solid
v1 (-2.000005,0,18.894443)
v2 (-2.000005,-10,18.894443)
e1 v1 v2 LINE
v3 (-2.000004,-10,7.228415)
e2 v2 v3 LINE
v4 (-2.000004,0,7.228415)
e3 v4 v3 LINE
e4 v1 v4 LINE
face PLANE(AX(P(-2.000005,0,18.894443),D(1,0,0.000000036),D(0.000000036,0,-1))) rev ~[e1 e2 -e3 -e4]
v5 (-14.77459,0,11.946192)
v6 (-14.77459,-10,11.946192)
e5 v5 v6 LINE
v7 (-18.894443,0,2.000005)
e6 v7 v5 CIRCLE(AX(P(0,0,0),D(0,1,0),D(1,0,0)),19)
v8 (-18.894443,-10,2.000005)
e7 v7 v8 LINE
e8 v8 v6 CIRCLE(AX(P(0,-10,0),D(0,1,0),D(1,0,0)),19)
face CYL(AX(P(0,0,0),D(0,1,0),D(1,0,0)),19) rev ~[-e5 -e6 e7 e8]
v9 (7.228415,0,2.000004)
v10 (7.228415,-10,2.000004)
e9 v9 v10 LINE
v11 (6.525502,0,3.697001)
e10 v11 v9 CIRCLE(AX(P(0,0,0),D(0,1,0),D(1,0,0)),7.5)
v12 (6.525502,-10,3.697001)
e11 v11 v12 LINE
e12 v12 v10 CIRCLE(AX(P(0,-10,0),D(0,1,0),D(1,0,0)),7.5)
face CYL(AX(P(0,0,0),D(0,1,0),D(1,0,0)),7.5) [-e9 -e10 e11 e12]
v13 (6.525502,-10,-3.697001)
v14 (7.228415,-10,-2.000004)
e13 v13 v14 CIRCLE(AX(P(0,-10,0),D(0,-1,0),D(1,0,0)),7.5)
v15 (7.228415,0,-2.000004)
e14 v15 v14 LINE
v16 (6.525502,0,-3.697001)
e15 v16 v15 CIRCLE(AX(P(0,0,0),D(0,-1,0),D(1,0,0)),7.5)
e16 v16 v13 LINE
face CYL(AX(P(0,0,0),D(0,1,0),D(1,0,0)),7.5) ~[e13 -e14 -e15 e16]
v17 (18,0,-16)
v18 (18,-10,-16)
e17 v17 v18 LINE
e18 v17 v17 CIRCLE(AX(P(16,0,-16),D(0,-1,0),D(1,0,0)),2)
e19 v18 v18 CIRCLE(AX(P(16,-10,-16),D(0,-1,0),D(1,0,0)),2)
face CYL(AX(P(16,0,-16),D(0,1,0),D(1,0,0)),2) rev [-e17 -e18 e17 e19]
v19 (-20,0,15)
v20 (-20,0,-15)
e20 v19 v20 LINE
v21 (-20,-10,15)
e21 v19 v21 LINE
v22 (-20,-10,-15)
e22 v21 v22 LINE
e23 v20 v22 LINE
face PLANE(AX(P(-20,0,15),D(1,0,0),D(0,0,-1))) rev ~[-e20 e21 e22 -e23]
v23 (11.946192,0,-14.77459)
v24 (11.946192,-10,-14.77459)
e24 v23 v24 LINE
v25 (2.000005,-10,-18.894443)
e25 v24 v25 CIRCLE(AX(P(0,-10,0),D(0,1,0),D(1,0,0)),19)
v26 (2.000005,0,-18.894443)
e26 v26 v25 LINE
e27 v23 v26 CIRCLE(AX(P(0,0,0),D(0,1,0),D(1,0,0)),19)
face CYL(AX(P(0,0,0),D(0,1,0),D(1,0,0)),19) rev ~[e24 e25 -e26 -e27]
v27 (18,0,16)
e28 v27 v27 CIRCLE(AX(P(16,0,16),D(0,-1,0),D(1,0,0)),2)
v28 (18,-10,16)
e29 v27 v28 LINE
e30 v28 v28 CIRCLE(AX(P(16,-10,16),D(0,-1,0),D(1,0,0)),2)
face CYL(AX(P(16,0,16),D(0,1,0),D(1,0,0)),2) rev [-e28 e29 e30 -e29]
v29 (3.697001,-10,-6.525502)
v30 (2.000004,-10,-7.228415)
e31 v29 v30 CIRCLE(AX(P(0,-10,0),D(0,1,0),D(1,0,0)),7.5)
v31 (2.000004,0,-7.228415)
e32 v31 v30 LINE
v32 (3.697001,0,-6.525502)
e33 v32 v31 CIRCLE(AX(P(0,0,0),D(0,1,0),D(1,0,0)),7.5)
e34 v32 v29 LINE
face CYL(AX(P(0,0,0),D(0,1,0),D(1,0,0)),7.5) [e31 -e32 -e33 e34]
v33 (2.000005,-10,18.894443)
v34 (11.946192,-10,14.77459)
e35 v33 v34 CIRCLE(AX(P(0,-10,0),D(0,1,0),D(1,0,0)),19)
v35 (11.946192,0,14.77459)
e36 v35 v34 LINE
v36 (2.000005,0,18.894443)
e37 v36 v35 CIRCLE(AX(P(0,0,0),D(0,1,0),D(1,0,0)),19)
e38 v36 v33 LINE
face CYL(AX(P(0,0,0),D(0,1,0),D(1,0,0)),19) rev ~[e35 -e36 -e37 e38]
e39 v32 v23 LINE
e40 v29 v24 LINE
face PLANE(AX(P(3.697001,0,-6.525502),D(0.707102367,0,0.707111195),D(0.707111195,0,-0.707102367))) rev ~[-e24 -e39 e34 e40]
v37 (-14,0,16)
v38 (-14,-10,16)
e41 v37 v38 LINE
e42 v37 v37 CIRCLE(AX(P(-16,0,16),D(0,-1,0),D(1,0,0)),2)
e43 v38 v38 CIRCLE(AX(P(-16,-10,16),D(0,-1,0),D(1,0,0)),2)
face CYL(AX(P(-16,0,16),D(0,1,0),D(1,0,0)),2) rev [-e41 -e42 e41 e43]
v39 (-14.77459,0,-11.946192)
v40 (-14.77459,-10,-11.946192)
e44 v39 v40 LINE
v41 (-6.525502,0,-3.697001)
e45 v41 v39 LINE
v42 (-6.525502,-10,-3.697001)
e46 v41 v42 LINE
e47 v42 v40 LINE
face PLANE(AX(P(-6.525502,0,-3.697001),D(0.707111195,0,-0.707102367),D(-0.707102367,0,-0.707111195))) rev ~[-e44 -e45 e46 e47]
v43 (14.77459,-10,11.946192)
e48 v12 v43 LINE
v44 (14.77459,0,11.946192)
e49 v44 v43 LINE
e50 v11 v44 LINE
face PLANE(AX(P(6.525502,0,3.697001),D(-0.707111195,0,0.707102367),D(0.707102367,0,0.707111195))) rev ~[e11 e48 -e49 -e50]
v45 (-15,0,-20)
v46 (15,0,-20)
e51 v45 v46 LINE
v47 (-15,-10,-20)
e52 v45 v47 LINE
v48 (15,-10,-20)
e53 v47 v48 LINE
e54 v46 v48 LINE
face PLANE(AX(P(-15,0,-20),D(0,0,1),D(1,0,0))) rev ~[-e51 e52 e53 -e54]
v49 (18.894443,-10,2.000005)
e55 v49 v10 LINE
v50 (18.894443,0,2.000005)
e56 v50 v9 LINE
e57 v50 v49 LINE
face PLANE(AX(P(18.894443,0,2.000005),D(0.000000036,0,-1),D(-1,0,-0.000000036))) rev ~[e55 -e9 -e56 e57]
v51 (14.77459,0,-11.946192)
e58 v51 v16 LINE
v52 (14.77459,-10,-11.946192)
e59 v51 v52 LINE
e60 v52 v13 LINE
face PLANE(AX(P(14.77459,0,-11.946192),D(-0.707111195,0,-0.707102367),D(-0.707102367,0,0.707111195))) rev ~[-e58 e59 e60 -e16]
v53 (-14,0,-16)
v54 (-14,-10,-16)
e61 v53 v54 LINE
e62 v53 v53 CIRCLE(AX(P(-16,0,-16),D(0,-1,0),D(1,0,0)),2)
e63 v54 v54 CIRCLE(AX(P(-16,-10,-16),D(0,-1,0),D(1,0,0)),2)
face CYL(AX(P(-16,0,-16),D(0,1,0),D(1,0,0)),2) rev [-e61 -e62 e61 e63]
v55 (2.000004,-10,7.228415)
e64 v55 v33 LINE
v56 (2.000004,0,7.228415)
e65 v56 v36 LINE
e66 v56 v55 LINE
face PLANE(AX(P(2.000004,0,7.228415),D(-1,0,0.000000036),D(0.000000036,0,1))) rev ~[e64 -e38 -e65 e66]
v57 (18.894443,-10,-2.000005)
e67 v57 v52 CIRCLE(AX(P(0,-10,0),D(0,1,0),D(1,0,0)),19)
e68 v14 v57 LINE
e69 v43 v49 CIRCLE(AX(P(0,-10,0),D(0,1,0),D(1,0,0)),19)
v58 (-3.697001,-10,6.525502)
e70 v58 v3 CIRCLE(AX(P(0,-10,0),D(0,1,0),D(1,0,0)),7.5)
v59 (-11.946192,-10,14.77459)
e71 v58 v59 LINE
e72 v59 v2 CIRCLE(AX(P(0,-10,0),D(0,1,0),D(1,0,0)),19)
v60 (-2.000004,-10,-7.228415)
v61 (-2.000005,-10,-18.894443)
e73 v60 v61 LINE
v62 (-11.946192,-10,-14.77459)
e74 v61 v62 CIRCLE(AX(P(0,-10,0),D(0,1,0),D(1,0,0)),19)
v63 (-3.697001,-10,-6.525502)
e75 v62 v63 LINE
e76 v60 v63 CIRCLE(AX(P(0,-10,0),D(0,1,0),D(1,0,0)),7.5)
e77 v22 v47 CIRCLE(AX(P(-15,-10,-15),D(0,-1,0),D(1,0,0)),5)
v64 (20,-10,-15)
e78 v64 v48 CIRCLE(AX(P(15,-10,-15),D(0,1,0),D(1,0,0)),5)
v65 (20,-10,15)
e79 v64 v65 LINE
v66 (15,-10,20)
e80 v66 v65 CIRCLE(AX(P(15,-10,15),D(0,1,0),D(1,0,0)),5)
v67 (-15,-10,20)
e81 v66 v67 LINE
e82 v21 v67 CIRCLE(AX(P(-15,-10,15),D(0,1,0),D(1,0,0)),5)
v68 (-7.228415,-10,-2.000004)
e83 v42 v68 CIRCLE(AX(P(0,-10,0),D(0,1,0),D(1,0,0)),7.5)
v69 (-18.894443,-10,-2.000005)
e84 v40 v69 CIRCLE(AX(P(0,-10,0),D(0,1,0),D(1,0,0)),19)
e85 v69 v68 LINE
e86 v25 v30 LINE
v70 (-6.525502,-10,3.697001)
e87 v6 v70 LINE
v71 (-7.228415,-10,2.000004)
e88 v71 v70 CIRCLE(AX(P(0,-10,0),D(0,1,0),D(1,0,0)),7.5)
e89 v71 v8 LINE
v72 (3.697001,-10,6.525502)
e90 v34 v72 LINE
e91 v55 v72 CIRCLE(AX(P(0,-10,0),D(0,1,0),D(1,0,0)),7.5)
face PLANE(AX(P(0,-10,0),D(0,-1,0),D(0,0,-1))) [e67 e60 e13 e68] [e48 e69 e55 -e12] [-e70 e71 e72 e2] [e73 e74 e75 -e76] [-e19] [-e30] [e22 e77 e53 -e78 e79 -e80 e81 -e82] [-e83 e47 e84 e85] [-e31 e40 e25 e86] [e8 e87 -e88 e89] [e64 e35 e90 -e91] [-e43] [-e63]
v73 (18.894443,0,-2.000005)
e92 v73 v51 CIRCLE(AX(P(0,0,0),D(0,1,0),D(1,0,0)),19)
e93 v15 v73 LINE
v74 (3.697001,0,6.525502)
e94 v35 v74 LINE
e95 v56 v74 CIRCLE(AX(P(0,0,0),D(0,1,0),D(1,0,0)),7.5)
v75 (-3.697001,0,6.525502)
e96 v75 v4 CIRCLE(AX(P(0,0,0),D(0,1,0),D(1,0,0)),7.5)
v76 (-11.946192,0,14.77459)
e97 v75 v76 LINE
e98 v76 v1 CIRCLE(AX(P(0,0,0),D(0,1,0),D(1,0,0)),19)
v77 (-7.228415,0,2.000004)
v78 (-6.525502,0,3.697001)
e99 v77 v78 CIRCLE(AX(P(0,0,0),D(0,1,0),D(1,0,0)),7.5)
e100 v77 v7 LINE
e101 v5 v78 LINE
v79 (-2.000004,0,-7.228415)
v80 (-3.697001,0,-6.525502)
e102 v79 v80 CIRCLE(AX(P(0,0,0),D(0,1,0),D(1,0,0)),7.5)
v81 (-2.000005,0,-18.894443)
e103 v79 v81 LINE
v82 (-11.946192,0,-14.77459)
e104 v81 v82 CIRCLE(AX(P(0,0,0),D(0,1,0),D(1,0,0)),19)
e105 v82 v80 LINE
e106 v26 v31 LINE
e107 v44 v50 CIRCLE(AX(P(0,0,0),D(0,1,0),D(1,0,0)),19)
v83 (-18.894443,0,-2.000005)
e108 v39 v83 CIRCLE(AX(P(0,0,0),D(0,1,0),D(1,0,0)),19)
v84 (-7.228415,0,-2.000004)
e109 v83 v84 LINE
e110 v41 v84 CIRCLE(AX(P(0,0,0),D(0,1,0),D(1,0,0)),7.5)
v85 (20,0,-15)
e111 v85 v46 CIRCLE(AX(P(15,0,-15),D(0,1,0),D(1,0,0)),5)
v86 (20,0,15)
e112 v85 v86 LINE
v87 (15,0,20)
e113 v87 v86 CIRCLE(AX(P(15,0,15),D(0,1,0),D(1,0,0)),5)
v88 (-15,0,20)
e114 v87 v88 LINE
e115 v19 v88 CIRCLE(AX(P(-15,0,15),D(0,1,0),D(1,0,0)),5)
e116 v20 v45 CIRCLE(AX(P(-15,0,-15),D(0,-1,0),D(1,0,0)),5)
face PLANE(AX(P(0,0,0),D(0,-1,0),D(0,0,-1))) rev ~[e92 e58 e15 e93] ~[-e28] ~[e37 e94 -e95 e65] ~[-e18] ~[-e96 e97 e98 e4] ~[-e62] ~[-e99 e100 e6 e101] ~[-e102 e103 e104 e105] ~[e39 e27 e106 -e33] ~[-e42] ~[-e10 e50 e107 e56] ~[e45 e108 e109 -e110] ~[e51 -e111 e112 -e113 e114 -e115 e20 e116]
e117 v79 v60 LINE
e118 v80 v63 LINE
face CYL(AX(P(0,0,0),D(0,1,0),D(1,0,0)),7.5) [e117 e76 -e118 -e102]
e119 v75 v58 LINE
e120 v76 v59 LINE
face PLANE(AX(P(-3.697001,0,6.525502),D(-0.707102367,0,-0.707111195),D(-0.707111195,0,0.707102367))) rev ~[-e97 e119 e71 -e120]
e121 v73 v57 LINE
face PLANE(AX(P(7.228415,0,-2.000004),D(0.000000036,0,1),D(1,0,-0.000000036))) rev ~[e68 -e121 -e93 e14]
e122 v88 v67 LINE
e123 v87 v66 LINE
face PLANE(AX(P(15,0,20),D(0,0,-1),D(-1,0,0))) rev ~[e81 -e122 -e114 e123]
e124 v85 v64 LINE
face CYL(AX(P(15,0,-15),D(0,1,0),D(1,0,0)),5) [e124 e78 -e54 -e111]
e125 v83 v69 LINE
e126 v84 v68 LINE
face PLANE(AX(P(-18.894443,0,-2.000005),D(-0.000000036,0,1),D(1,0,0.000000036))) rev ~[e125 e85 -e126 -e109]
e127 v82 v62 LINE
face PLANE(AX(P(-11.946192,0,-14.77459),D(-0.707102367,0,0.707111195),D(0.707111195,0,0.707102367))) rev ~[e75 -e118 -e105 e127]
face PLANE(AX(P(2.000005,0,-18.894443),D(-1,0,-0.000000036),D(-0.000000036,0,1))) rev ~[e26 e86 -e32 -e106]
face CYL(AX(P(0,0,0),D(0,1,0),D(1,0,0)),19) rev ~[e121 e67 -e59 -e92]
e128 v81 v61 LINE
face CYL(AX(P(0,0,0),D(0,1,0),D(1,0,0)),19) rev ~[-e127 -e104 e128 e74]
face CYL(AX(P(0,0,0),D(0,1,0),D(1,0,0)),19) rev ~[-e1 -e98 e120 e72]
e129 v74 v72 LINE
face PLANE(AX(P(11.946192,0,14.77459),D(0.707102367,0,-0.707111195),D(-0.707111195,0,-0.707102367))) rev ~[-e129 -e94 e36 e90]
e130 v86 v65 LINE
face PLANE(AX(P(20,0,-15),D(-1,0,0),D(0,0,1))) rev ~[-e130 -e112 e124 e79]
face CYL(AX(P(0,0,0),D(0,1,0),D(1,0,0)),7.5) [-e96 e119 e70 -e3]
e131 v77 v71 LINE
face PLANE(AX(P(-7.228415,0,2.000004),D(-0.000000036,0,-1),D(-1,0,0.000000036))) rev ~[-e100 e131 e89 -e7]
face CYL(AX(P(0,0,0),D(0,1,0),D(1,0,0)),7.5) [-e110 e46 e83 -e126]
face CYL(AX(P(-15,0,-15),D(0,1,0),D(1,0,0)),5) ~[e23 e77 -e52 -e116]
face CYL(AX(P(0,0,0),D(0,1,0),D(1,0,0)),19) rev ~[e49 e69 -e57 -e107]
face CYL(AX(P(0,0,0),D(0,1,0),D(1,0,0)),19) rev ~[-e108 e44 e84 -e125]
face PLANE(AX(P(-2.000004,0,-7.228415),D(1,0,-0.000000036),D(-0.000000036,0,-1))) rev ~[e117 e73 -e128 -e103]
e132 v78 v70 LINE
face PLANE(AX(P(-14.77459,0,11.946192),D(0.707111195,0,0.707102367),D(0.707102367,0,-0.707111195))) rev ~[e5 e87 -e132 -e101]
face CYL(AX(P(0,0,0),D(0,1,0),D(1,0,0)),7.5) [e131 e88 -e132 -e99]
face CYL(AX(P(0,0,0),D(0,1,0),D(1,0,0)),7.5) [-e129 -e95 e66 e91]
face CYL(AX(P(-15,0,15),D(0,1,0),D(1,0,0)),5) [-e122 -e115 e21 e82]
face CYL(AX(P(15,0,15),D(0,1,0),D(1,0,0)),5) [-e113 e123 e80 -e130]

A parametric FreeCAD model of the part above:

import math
import FreeCAD as App
import Part
import Sketcher

V = App.Vector

doc = App.newDocument("Part")
body = doc.addObject("PartDesign::Body", "Body")

sketch1 = body.newObject("Sketcher::SketchObject", "Sketch")
sketch1.AttachmentSupport = (doc.getObject("XZ_Plane"), [""])
sketch1.MapMode = "FlatFace"
sketch1.addGeometry([
    Part.ArcOfCircle(Part.Circle(V(-15, -15, 0), V(0, 0, 1), 5), math.radians(180), math.radians(270)),
    Part.LineSegment(V(-15, -20, 0), V(15, -20, 0)),
    Part.ArcOfCircle(Part.Circle(V(15, -15, 0), V(0, 0, 1), 5), math.radians(-90), math.radians(0)),
    Part.LineSegment(V(20, -15, 0), V(20, 15, 0)),
    Part.ArcOfCircle(Part.Circle(V(15, 15, 0), V(0, 0, 1), 5), math.radians(0), math.radians(90)),
    Part.LineSegment(V(15, 20, 0), V(-15, 20, 0)),
    Part.ArcOfCircle(Part.Circle(V(-15, 15, 0), V(0, 0, 1), 5), math.radians(90), math.radians(180)),
    Part.LineSegment(V(-20, 15, 0), V(-20, -15, 0)),
    Part.Circle(V(-16, -16, 0), V(0, 0, 1), 2),
    Part.ArcOfCircle(Part.Circle(V(0, 0, 0), V(0, 0, 1), 7.499997), math.radians(-119.533576), math.radians(-105.466043)),
    Part.LineSegment(V(-2, -7.2284, 0), V(-2, -18.8944, 0)),
    Part.ArcOfCircle(Part.Circle(V(0, 0, 0), V(0, 0, 1), 19.000013), math.radians(-128.957734), math.radians(-96.042342)),
    Part.LineSegment(V(-11.9462, -14.7746, 0), V(-3.697, -6.5255, 0)),
    Part.ArcOfCircle(Part.Circle(V(0, 0, 0), V(0, 0, 1), 7.499984), math.radians(-164.533957), math.radians(-150.466424)),
    Part.LineSegment(V(-6.5255, -3.697, 0), V(-14.7746, -11.9462, 0)),
    Part.ArcOfCircle(Part.Circle(V(0, 0, 0), V(0, 0, 1), 18.999957), math.radians(-173.957658), math.radians(-141.042266)),
    Part.LineSegment(V(-18.8944, -2, 0), V(-7.2284, -2, 0)),
    Part.ArcOfCircle(Part.Circle(V(0, 0, 0), V(0, 0, 1), 18.999957), math.radians(-83.957658), math.radians(-51.042266)),
    Part.LineSegment(V(2, -18.8944, 0), V(2, -7.2284, 0)),
    Part.ArcOfCircle(Part.Circle(V(0, 0, 0), V(0, 0, 1), 7.499984), math.radians(-74.533957), math.radians(-60.466424)),
    Part.LineSegment(V(3.697, -6.5255, 0), V(11.9462, -14.7746, 0)),
    Part.Circle(V(16, -16, 0), V(0, 0, 1), 2),
    Part.LineSegment(V(7.2284, -2, 0), V(18.8944, -2, 0)),
    Part.ArcOfCircle(Part.Circle(V(0, 0, 0), V(0, 0, 1), 19.000013), math.radians(-38.957734), math.radians(-6.042342)),
    Part.LineSegment(V(14.7746, -11.9462, 0), V(6.5255, -3.697, 0)),
    Part.ArcOfCircle(Part.Circle(V(0, 0, 0), V(0, 0, 1), 7.499984), math.radians(-29.533576), math.radians(-15.466043)),
    Part.ArcOfCircle(Part.Circle(V(0, 0, 0), V(0, 0, 1), 19.000013), math.radians(141.042266), math.radians(173.957658)),
    Part.LineSegment(V(-14.7746, 11.9462, 0), V(-6.5255, 3.697, 0)),
    Part.ArcOfCircle(Part.Circle(V(0, 0, 0), V(0, 0, 1), 7.499997), math.radians(150.466424), math.radians(164.533957)),
    Part.LineSegment(V(-7.2284, 2, 0), V(-18.8944, 2, 0)),
    Part.Circle(V(-16, 16, 0), V(0, 0, 1), 2),
    Part.ArcOfCircle(Part.Circle(V(0, 0, 0), V(0, 0, 1), 18.999957), math.radians(96.042342), math.radians(128.957734)),
    Part.LineSegment(V(-2, 18.8944, 0), V(-2, 7.2284, 0)),
    Part.ArcOfCircle(Part.Circle(V(0, 0, 0), V(0, 0, 1), 7.499984), math.radians(105.466043), math.radians(119.533576)),
    Part.LineSegment(V(-3.697, 6.5255, 0), V(-11.9462, 14.7746, 0)),
    Part.ArcOfCircle(Part.Circle(V(0, 0, 0), V(0, 0, 1), 18.999957), math.radians(6.042342), math.radians(38.957734)),
    Part.LineSegment(V(18.8944, 2, 0), V(7.2284, 2, 0)),
    Part.ArcOfCircle(Part.Circle(V(0, 0, 0), V(0, 0, 1), 7.499984), math.radians(15.466043), math.radians(29.533576)),
    Part.LineSegment(V(6.5255, 3.697, 0), V(14.7746, 11.9462, 0)),
    Part.ArcOfCircle(Part.Circle(V(0, 0, 0), V(0, 0, 1), 7.499997), math.radians(60.466424), math.radians(74.533957)),
    Part.LineSegment(V(2, 7.2284, 0), V(2, 18.8944, 0)),
    Part.ArcOfCircle(Part.Circle(V(0, 0, 0), V(0, 0, 1), 19.000013), math.radians(51.042266), math.radians(83.957658)),
    Part.LineSegment(V(11.9462, 14.7746, 0), V(3.697, 6.5255, 0)),
    Part.Circle(V(16, 16, 0), V(0, 0, 1), 2),
], False)
sketch1.addConstraint([
    Sketcher.Constraint("Tangent", 0, 2, 1, 1),
    Sketcher.Constraint("Tangent", 1, 2, 2, 1),
    Sketcher.Constraint("Tangent", 2, 2, 3, 1),
    Sketcher.Constraint("Tangent", 3, 2, 4, 1),
    Sketcher.Constraint("Tangent", 4, 2, 5, 1),
    Sketcher.Constraint("Tangent", 5, 2, 6, 1),
    Sketcher.Constraint("Tangent", 6, 2, 7, 1),
    Sketcher.Constraint("Tangent", 7, 2, 0, 1),
    Sketcher.Constraint("Coincident", 9, 2, 10, 1),
    Sketcher.Constraint("Coincident", 10, 2, 11, 2),
    Sketcher.Constraint("Coincident", 11, 1, 12, 1),
    Sketcher.Constraint("Coincident", 12, 2, 9, 1),
    Sketcher.Constraint("Coincident", 13, 2, 14, 1),
    Sketcher.Constraint("Coincident", 14, 2, 15, 2),
    Sketcher.Constraint("Coincident", 15, 1, 16, 1),
    Sketcher.Constraint("Coincident", 16, 2, 13, 1),
    Sketcher.Constraint("Coincident", 17, 1, 18, 1),
    Sketcher.Constraint("Coincident", 18, 2, 19, 1),
    Sketcher.Constraint("Coincident", 19, 2, 20, 1),
    Sketcher.Constraint("Coincident", 20, 2, 17, 2),
    Sketcher.Constraint("Coincident", 22, 2, 23, 2),
    Sketcher.Constraint("Coincident", 23, 1, 24, 1),
    Sketcher.Constraint("Coincident", 24, 2, 25, 1),
    Sketcher.Constraint("Coincident", 25, 2, 22, 1),
    Sketcher.Constraint("Coincident", 26, 1, 27, 1),
    Sketcher.Constraint("Coincident", 27, 2, 28, 1),
    Sketcher.Constraint("Coincident", 28, 2, 29, 1),
    Sketcher.Constraint("Coincident", 29, 2, 26, 2),
    Sketcher.Constraint("Coincident", 31, 1, 32, 1),
    Sketcher.Constraint("Coincident", 32, 2, 33, 1),
    Sketcher.Constraint("Coincident", 33, 2, 34, 1),
    Sketcher.Constraint("Coincident", 34, 2, 31, 2),
    Sketcher.Constraint("Coincident", 35, 1, 36, 1),
    Sketcher.Constraint("Coincident", 36, 2, 37, 1),
    Sketcher.Constraint("Coincident", 37, 2, 38, 1),
    Sketcher.Constraint("Coincident", 38, 2, 35, 2),
    Sketcher.Constraint("Coincident", 39, 2, 40, 1),
    Sketcher.Constraint("Coincident", 40, 2, 41, 2),
    Sketcher.Constraint("Coincident", 41, 1, 42, 1),
    Sketcher.Constraint("Coincident", 42, 2, 39, 1),
    Sketcher.Constraint("Horizontal", 1),
    Sketcher.Constraint("Vertical", 3),
    Sketcher.Constraint("Horizontal", 5),
    Sketcher.Constraint("Vertical", 7),
    Sketcher.Constraint("Vertical", 10),
    Sketcher.Constraint("Horizontal", 16),
    Sketcher.Constraint("Vertical", 18),
    Sketcher.Constraint("Horizontal", 22),
    Sketcher.Constraint("Horizontal", 29),
    Sketcher.Constraint("Vertical", 32),
    Sketcher.Constraint("Horizontal", 36),
    Sketcher.Constraint("Vertical", 40),
    Sketcher.Constraint("Coincident", 9, 3, -1, 1),
    Sketcher.Constraint("Coincident", 11, 3, -1, 1),
    Sketcher.Constraint("Coincident", 13, 3, -1, 1),
    Sketcher.Constraint("Coincident", 15, 3, -1, 1),
    Sketcher.Constraint("Coincident", 17, 3, -1, 1),
    Sketcher.Constraint("Coincident", 19, 3, -1, 1),
    Sketcher.Constraint("Coincident", 23, 3, -1, 1),
    Sketcher.Constraint("Coincident", 25, 3, -1, 1),
    Sketcher.Constraint("Coincident", 26, 3, -1, 1),
    Sketcher.Constraint("Coincident", 28, 3, -1, 1),
    Sketcher.Constraint("Coincident", 31, 3, -1, 1),
    Sketcher.Constraint("Coincident", 33, 3, -1, 1),
    Sketcher.Constraint("Coincident", 35, 3, -1, 1),
    Sketcher.Constraint("Coincident", 37, 3, -1, 1),
    Sketcher.Constraint("Coincident", 39, 3, -1, 1),
    Sketcher.Constraint("Coincident", 41, 3, -1, 1),
    Sketcher.Constraint("Equal", 0, 2),
    Sketcher.Constraint("Equal", 2, 4),
    Sketcher.Constraint("Equal", 4, 6),
    Sketcher.Constraint("Equal", 9, 13),
    Sketcher.Constraint("Equal", 11, 15),
    Sketcher.Constraint("Equal", 15, 17),
    Sketcher.Constraint("Equal", 13, 19),
    Sketcher.Constraint("Equal", 8, 21),
    Sketcher.Constraint("Equal", 17, 23),
    Sketcher.Constraint("Equal", 19, 25),
    Sketcher.Constraint("Equal", 23, 26),
    Sketcher.Constraint("Equal", 25, 28),
    Sketcher.Constraint("Equal", 21, 30),
    Sketcher.Constraint("Equal", 26, 31),
    Sketcher.Constraint("Equal", 28, 33),
    Sketcher.Constraint("Equal", 31, 35),
    Sketcher.Constraint("Equal", 33, 37),
    Sketcher.Constraint("Equal", 37, 39),
    Sketcher.Constraint("Equal", 35, 41),
    Sketcher.Constraint("Equal", 30, 43),
    Sketcher.Constraint("Symmetric", 0, 3, 4, 3, -1, 1),
    Sketcher.Constraint("Symmetric", 21, 3, 30, 3, -1, 1),
    Sketcher.Constraint("Symmetric", 8, 3, 43, 3, -1, 1),
    Sketcher.Constraint("Symmetric", 8, 3, 21, 3, -2),
    Sketcher.Constraint("Parallel", 12, 14),
    Sketcher.Constraint("Perpendicular", 14, 20),
    Sketcher.Constraint("Parallel", 20, 24),
    Sketcher.Constraint("Parallel", 24, 27),
    Sketcher.Constraint("Parallel", 27, 34),
    Sketcher.Constraint("Perpendicular", 34, 38),
    Sketcher.Constraint("Parallel", 38, 42),
    Sketcher.Constraint("Horizontal", 10, 2, 17, 1),
    Sketcher.Constraint("Horizontal", 12, 2, 19, 2),
    Sketcher.Constraint("Horizontal", 11, 1, 20, 2),
    Sketcher.Constraint("Horizontal", 16, 2, 22, 2),
    Sketcher.Constraint("Horizontal", 14, 2, 23, 1),
    Sketcher.Constraint("Horizontal", 29, 2, 35, 1),
    Sketcher.Constraint("Horizontal", 27, 2, 37, 2),
    Sketcher.Constraint("Horizontal", 32, 2, 39, 2),
    Sketcher.Constraint("Horizontal", 34, 2, 41, 1),
    Sketcher.Constraint("Vertical", 14, 2, 26, 1),
    Sketcher.Constraint("Vertical", 16, 2, 28, 2),
    Sketcher.Constraint("Vertical", 10, 2, 31, 1),
    Sketcher.Constraint("Vertical", 12, 2, 33, 2),
    Sketcher.Constraint("Equal", 5, 3),
    Sketcher.Constraint("Equal", 36, 10),
    Sketcher.Constraint("Equal", 12, 14),
    Sketcher.Constraint("Diameter", 8, 4.0),
    Sketcher.Constraint("Radius", 0, 5.0),
    Sketcher.Constraint("Radius", 11, 19.0),
    Sketcher.Constraint("Radius", 9, 7.5),
    Sketcher.Constraint("DistanceX", 1, 1, 1, 2, 30.0),
    Sketcher.Constraint("DistanceX", 8, 3, -1, 1, 16.0),
    Sketcher.Constraint("DistanceY", 8, 3, -1, 1, 16.0),
    Sketcher.Constraint("DistanceX", 9, 2, -1, 1, 2.0),
    Sketcher.Constraint("Distance", 12, 11.666),
])
pad1 = body.newObject("PartDesign::Pad", "Pad")
pad1.Profile = sketch1
pad1.Length = 10

doc.recompute()
